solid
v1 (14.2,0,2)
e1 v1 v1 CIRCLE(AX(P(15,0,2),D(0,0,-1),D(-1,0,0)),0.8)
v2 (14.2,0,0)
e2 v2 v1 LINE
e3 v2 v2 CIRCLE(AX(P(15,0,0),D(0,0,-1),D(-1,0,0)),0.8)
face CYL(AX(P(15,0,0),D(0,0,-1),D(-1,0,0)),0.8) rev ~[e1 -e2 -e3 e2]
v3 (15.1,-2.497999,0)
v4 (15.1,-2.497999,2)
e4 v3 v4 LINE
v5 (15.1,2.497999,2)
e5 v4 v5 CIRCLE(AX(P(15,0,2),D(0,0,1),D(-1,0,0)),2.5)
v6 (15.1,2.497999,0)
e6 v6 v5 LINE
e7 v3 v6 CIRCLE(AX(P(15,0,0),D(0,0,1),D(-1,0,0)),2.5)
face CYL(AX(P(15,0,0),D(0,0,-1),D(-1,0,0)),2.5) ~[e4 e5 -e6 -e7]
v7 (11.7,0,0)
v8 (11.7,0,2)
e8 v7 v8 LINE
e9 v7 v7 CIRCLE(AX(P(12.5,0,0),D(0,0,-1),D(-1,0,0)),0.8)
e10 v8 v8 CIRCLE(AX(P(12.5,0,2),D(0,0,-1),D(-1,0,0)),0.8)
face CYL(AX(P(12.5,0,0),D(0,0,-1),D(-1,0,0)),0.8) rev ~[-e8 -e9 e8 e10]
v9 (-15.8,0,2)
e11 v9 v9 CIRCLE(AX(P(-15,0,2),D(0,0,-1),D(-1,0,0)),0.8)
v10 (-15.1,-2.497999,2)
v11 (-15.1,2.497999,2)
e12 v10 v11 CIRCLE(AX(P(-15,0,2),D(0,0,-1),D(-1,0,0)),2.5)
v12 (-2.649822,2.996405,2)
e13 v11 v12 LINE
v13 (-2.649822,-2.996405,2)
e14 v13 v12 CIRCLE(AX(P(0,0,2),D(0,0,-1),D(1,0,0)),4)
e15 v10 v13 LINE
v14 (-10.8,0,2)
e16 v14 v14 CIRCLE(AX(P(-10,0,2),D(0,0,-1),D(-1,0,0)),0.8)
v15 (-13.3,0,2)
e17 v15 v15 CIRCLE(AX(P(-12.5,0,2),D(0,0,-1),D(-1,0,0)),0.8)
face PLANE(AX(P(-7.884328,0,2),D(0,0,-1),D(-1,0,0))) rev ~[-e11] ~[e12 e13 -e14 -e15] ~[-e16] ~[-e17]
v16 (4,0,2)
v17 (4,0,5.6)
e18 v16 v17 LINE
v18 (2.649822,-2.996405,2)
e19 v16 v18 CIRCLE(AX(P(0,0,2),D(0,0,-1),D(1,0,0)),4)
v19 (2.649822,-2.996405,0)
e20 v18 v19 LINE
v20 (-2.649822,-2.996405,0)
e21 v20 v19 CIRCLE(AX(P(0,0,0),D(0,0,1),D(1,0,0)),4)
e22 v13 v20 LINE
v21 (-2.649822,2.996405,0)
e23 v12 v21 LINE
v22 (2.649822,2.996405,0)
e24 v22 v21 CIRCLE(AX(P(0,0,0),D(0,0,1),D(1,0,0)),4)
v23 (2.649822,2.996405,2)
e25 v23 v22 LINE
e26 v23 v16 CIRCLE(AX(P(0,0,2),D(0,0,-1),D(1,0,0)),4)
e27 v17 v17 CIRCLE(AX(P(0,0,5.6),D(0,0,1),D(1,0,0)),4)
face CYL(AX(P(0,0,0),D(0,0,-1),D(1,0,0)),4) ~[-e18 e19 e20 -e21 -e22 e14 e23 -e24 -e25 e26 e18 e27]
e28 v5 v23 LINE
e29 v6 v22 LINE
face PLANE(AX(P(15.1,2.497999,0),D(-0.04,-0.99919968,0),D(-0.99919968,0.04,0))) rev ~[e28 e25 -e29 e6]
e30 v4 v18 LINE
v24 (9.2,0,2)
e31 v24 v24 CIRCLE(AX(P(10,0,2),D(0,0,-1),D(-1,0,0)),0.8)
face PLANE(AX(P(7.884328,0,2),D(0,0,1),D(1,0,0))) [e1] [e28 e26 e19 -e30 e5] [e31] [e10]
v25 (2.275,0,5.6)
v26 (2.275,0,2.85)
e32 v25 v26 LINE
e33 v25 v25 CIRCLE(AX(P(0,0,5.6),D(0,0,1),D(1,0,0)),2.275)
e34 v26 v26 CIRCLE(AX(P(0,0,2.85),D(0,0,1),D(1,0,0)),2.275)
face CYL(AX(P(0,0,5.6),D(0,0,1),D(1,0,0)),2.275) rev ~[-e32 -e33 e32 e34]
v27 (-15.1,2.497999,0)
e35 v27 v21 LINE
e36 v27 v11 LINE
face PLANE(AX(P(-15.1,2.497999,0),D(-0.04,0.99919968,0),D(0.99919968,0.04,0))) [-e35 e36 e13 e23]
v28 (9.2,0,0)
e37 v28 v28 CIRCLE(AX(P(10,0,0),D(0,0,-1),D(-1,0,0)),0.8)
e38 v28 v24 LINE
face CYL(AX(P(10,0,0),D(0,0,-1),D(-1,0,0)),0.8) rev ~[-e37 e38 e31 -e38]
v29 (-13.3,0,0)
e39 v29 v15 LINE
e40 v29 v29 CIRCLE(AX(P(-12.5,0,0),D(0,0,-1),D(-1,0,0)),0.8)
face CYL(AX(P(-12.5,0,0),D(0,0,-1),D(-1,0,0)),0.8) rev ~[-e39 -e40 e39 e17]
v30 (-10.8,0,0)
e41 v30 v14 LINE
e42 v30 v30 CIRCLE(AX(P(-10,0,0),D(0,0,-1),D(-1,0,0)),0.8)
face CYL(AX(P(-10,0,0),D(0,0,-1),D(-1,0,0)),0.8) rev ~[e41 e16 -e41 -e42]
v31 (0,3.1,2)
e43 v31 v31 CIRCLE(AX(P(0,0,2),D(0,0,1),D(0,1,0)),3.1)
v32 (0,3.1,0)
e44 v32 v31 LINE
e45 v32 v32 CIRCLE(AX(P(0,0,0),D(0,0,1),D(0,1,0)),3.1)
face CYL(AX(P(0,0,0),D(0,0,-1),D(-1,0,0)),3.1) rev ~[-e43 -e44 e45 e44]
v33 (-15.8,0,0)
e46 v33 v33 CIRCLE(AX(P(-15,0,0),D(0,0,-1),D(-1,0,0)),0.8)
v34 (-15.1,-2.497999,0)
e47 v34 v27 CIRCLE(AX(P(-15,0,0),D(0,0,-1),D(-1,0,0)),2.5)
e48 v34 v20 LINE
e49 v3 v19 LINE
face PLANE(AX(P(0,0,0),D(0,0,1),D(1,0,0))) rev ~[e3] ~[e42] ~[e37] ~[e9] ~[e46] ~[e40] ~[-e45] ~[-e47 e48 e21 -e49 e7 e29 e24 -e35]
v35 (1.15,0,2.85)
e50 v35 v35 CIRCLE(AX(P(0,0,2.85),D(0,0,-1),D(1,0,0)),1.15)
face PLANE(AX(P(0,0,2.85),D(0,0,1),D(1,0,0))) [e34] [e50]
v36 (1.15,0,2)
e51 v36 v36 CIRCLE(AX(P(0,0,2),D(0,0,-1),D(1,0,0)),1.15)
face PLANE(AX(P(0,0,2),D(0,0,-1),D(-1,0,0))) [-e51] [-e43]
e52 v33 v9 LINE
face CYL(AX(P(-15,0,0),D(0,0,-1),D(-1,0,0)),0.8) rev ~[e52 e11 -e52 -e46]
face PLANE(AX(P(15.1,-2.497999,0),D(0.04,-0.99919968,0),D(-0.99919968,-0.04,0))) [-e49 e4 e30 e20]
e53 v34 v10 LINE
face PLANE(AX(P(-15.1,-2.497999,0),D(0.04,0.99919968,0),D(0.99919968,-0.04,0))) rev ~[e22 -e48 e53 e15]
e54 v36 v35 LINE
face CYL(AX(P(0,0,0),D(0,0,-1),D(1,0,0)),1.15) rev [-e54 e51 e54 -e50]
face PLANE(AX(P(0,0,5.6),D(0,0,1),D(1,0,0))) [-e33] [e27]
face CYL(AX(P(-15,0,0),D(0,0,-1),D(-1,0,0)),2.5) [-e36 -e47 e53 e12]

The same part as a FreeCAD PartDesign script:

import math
import FreeCAD as App
import Part
import Sketcher
from FreeCAD import Vector
Q = App.Units.Quantity

doc = App.newDocument("Part")
body = doc.addObject("PartDesign::Body", "Body")

sketch1 = body.newObject("Sketcher::SketchObject", "Sketch")
sketch1.AttachmentSupport = (doc.getObject("XY_Plane"), [""])
sketch1.MapMode = "FlatFace"
sketch1.addGeometry([
    Part.Circle(Vector(0, 0, 0), Vector(0, 0, 1), 4),
    Part.Circle(Vector(0, 0, 0), Vector(0, 0, 1), 1.1),
], False)
sketch1.addConstraint([
    Sketcher.Constraint("Coincident", 0, 3, -1, 1),
    Sketcher.Constraint("Coincident", 1, 3, -1, 1),
    Sketcher.Constraint("Diameter", 0, Q("8 mm")),
    Sketcher.Constraint("Diameter", 1, Q("2.3 mm")),
])
pad1 = body.newObject("PartDesign::Pad", "Pad")
pad1.Profile = sketch1
pad1.Length = 5.6

sketch2 = body.newObject("Sketcher::SketchObject", "Sketch001")
sketch2.AttachmentSupport = (doc.getObject("XY_Plane"), [""])
sketch2.MapMode = "FlatFace"
sketch2.AttachmentOffset = App.Placement(Vector(0, 0, 5.6), App.Rotation())
sketch2.addGeometry(Part.Circle(Vector(0, 0, 0), Vector(0, 0, 1), 2.3), False)
sketch2.addConstraint([
    Sketcher.Constraint("Coincident", 0, 3, -1, 1),
    Sketcher.Constraint("Diameter", 0, Q("4.55 mm")),
])
pocket1 = body.newObject("PartDesign::Pocket", "Pocket")
pocket1.Profile = sketch2
pocket1.Length = 2.75

sketch3 = body.newObject("Sketcher::SketchObject", "Sketch002")
sketch3.AttachmentSupport = (doc.getObject("XY_Plane"), [""])
sketch3.MapMode = "FlatFace"
sketch3.addGeometry(Part.Circle(Vector(0, 0, 0), Vector(0, 0, 1), 3.1), False)
sketch3.addConstraint([
    Sketcher.Constraint("Coincident", 0, 3, -1, 1),
    Sketcher.Constraint("Diameter", 0, Q("6.2 mm")),
])
pocket2 = body.newObject("PartDesign::Pocket", "Pocket001")
pocket2.Profile = sketch3
pocket2.Length = 2
pocket2.Reversed = True

sketch4 = body.newObject("Sketcher::SketchObject", "Sketch003")
sketch4.AttachmentSupport = (doc.getObject("XY_Plane"), [""])
sketch4.MapMode = "FlatFace"
sketch4.addGeometry([
    Part.LineSegment(Vector(0.1, 3.1, 0), Vector(15.1, 2.5, 0)),
    Part.ArcOfCircle(Part.Circle(Vector(15, 0, 0), Vector(0, 0, 1), 2.5), math.radians(-88), math.radians(88)),
    Part.LineSegment(Vector(15.1, -2.5, 0), Vector(0.1, -3.1, 0)),
    Part.ArcOfCircle(Part.Circle(Vector(0, 0, 0), Vector(0, 0, 1), 3.1), math.radians(-88), math.radians(88)),
    Part.Circle(Vector(15, 0, 0), Vector(0, 0, 1), 0.8),
    Part.Circle(Vector(12.5, 0, 0), Vector(0, 0, 1), 0.8),
    Part.Circle(Vector(10, 0, 0), Vector(0, 0, 1), 0.8),
    Part.ArcOfCircle(Part.Circle(Vector(-15, 0, 0), Vector(0, 0, 1), 2.5), math.radians(92), math.radians(268)),
    Part.LineSegment(Vector(-15.1, 2.5, 0), Vector(-0.1, 3.1, 0)),
    Part.ArcOfCircle(Part.Circle(Vector(0, 0, 0), Vector(0, 0, 1), 3.1), math.radians(92), math.radians(268)),
    Part.LineSegment(Vector(-0.1, -3.1, 0), Vector(-15.1, -2.5, 0)),
    Part.Circle(Vector(-10, 0, 0), Vector(0, 0, 1), 0.8),
    Part.Circle(Vector(-12.5, 0, 0), Vector(0, 0, 1), 0.8),
    Part.Circle(Vector(-15, 0, 0), Vector(0, 0, 1), 0.8),
], False)
sketch4.addConstraint([
    Sketcher.Constraint("Tangent", 0, 2, 1, 2),
    Sketcher.Constraint("Tangent", 1, 1, 2, 1),
    Sketcher.Constraint("Tangent", 2, 2, 3, 1),
    Sketcher.Constraint("Tangent", 3, 2, 0, 1),
    Sketcher.Constraint("Tangent", 7, 1, 8, 1),
    Sketcher.Constraint("Tangent", 8, 2, 9, 1),
    Sketcher.Constraint("Tangent", 9, 2, 10, 1),
    Sketcher.Constraint("Tangent", 10, 2, 7, 2),
    Sketcher.Constraint("Coincident", 3, 3, -1, 1),
    Sketcher.Constraint("Coincident", 9, 3, -1, 1),
    Sketcher.Constraint("Coincident", 4, 3, 1, 3),
    Sketcher.Constraint("Coincident", 13, 3, 7, 3),
    Sketcher.Constraint("Equal", 4, 5),
    Sketcher.Constraint("Equal", 5, 6),
    Sketcher.Constraint("Equal", 1, 7),
    Sketcher.Constraint("Equal", 3, 9),
    Sketcher.Constraint("Equal", 6, 11),
    Sketcher.Constraint("Equal", 11, 12),
    Sketcher.Constraint("Equal", 12, 13),
    Sketcher.Constraint("Symmetric", 1, 3, 7, 3, -1, 1),
    Sketcher.Constraint("Symmetric", 6, 3, 11, 3, -1, 1),
    Sketcher.Constraint("Symmetric", 5, 3, 12, 3, -1, 1),
    Sketcher.Constraint("PointOnObject", 1, 3, -1),
    Sketcher.Constraint("PointOnObject", 5, 3, -1),
    Sketcher.Constraint("PointOnObject", 6, 3, -1),
    Sketcher.Constraint("Diameter", 4, Q("1.6 mm")),
    Sketcher.Constraint("Radius", 1, Q("2.5 mm")),
    Sketcher.Constraint("Radius", 3, Q("3.1 mm")),
    Sketcher.Constraint("DistanceX", -1, 1, 1, 3, Q("15 mm")),
    Sketcher.Constraint("DistanceX", -1, 1, 6, 3, Q("10 mm")),
    Sketcher.Constraint("DistanceX", -1, 1, 5, 3, Q("12.5 mm")),
])
pad2 = body.newObject("PartDesign::Pad", "Pad001")
pad2.Profile = sketch4
pad2.Length = 2

doc.recompute()
